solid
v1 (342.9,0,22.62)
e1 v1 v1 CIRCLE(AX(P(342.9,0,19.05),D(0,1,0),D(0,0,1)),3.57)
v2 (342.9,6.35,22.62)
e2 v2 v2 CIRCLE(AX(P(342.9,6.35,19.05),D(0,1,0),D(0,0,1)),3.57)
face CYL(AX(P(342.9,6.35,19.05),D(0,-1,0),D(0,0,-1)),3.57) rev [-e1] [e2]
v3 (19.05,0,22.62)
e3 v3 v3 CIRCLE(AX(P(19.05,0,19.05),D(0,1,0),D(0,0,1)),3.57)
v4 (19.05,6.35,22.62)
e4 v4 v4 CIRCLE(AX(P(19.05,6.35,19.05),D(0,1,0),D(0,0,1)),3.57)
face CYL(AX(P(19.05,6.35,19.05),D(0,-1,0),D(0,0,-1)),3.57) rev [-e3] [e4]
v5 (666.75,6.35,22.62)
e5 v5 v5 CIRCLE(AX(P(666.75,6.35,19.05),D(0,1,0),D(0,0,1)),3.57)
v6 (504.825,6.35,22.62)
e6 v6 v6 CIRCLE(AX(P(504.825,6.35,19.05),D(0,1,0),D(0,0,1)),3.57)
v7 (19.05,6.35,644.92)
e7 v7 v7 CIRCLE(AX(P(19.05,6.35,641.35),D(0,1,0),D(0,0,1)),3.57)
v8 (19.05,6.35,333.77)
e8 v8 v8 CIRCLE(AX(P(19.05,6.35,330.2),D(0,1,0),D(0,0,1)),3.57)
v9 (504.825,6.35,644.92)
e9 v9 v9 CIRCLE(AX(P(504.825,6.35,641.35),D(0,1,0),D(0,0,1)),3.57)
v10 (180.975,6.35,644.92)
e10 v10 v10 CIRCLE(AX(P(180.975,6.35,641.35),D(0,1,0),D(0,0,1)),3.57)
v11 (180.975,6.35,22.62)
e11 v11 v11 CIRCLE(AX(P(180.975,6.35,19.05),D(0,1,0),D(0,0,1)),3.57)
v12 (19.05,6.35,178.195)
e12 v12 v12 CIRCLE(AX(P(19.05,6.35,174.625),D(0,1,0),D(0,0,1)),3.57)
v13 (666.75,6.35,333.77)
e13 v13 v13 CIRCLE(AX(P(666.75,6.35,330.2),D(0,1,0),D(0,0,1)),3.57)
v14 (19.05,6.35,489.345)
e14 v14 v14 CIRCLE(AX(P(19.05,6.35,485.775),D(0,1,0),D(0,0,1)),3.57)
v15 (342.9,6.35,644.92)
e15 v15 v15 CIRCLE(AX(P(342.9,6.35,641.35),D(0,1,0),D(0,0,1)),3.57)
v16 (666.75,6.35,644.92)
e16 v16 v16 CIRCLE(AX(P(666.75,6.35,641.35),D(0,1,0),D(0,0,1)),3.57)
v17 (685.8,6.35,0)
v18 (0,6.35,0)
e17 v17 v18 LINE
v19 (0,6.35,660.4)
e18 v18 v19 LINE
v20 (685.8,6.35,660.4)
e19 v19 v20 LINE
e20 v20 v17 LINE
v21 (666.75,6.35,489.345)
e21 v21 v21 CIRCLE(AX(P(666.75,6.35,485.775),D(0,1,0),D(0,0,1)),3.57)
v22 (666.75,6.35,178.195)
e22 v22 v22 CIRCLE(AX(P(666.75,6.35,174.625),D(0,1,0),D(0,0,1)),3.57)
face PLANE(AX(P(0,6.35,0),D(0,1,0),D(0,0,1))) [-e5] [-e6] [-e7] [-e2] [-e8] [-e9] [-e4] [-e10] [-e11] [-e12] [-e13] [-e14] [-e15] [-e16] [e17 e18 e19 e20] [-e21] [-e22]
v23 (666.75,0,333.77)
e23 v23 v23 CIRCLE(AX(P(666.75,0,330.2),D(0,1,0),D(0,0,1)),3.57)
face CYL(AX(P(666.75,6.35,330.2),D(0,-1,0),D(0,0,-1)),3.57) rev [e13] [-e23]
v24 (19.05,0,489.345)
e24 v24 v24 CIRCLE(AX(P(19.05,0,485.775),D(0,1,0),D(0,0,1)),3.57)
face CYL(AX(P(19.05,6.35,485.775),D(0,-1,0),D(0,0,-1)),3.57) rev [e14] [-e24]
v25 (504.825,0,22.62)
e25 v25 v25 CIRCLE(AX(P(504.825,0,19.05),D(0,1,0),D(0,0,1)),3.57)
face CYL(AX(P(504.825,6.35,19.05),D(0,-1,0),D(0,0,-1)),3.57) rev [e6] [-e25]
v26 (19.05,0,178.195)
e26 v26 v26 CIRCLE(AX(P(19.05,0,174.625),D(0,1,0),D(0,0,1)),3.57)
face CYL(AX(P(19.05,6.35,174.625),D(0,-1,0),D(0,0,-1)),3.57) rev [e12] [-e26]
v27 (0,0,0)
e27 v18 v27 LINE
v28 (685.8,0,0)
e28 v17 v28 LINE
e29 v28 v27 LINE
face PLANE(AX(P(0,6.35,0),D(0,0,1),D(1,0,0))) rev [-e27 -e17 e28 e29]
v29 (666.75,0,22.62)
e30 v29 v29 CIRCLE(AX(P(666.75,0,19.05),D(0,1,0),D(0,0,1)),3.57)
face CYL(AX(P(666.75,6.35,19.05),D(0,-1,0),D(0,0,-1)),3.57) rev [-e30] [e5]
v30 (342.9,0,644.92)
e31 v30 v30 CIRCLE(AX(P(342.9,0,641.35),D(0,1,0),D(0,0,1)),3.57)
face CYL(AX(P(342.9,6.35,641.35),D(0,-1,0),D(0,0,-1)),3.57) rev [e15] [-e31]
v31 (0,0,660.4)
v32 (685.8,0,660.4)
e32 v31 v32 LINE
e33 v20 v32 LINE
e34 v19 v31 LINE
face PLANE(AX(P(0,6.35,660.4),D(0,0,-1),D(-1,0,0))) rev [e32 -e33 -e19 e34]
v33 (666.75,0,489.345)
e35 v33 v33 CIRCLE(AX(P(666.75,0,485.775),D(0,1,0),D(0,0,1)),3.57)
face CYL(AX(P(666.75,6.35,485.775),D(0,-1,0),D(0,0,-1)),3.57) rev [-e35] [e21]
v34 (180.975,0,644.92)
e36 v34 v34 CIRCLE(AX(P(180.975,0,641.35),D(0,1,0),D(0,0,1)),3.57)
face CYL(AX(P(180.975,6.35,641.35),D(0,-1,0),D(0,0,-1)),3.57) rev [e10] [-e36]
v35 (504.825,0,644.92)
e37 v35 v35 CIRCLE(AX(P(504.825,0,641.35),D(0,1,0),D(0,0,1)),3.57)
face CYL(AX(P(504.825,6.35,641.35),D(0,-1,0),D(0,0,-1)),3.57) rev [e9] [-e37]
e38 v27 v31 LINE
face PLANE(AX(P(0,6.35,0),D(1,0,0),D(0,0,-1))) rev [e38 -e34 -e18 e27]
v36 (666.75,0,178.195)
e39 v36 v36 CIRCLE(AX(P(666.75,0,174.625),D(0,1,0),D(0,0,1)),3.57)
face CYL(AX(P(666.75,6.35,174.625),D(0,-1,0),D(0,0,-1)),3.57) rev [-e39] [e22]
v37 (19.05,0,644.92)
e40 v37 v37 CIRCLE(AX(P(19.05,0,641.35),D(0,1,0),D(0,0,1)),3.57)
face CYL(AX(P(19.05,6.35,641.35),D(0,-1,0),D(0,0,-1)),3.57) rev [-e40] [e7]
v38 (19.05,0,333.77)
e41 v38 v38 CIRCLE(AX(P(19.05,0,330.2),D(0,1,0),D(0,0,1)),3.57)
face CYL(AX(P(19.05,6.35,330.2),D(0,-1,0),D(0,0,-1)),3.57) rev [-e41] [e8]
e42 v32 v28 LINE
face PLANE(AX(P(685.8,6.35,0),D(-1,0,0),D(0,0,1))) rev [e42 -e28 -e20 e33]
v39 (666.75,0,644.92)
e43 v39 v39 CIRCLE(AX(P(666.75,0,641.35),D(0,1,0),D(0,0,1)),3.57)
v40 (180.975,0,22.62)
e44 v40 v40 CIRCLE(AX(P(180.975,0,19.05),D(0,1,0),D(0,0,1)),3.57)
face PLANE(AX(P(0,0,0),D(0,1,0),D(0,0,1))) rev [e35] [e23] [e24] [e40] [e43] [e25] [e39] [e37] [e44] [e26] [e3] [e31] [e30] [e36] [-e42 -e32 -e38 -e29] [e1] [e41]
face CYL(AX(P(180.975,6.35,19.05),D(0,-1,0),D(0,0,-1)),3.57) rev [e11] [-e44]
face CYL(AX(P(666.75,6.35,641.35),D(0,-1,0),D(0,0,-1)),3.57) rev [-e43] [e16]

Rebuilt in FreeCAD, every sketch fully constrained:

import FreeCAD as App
import Part
import Sketcher
Q = App.Units.Quantity

doc = App.newDocument("Part")
params = doc.addObject("Spreadsheet::Sheet", "Params")
for row, (alias, value) in enumerate([
    ("sketch1_width", "27 in"),
    ("sketch1_height", "26 in"),
    ("pad1_length", "0.25 in"),
], start=1):
    params.set(f"A{row}", alias)
    params.set(f"B{row}", "=" + value)
    params.setAlias(f"B{row}", alias)

body = doc.addObject("PartDesign::Body", "Body")

# Sketch on XZ plane
sketch1 = body.newObject("Sketcher::SketchObject", "Sketch")
sketch1.AttachmentSupport = (doc.getObject("XZ_Plane"), [""])
sketch1.MapMode = "FlatFace"
sketch1.addGeometry([
    Part.LineSegment(App.Vector(0, 0, 0), App.Vector(0, 660.4, 0)),  # 0
    Part.LineSegment(App.Vector(0, 660.4, 0), App.Vector(685.8, 660.4, 0)),  # 1
    Part.LineSegment(App.Vector(685.8, 660.4, 0), App.Vector(685.8, 0, 0)),  # 2
    Part.LineSegment(App.Vector(685.8, 0, 0), App.Vector(0, 0, 0)),  # 3
    Part.Circle(App.Vector(19.1, 641.4, 0), App.Vector(0, 0, 1), 3.6),  # 4
    Part.Circle(App.Vector(181, 641.4, 0), App.Vector(0, 0, 1), 3.6),  # 5
    Part.Circle(App.Vector(19.1, 485.8, 0), App.Vector(0, 0, 1), 3.6),  # 6
    Part.Circle(App.Vector(342.9, 641.4, 0), App.Vector(0, 0, 1), 3.6),  # 7
    Part.Circle(App.Vector(504.8, 641.4, 0), App.Vector(0, 0, 1), 3.6),  # 8
    Part.Circle(App.Vector(666.8, 641.4, 0), App.Vector(0, 0, 1), 3.6),  # 9
    Part.Circle(App.Vector(666.8, 485.8, 0), App.Vector(0, 0, 1), 3.6),  # 10
    Part.Circle(App.Vector(19.1, 330.2, 0), App.Vector(0, 0, 1), 3.6),  # 11
    Part.Circle(App.Vector(19.1, 174.6, 0), App.Vector(0, 0, 1), 3.6),  # 12
    Part.Circle(App.Vector(19.1, 19.1, 0), App.Vector(0, 0, 1), 3.6),  # 13
    Part.Circle(App.Vector(181, 19.1, 0), App.Vector(0, 0, 1), 3.6),  # 14
    Part.Circle(App.Vector(666.8, 330.2, 0), App.Vector(0, 0, 1), 3.6),  # 15
    Part.Circle(App.Vector(666.8, 174.6, 0), App.Vector(0, 0, 1), 3.6),  # 16
    Part.Circle(App.Vector(342.9, 19.1, 0), App.Vector(0, 0, 1), 3.6),  # 17
    Part.Circle(App.Vector(504.8, 19.1, 0), App.Vector(0, 0, 1), 3.6),  # 18
    Part.Circle(App.Vector(666.8, 19.1, 0), App.Vector(0, 0, 1), 3.6),  # 19
], False)
sketch1.addConstraint([
    Sketcher.Constraint("Coincident", 0, 2, 1, 1),
    Sketcher.Constraint("Coincident", 1, 2, 2, 1),
    Sketcher.Constraint("Coincident", 2, 2, 3, 1),
    Sketcher.Constraint("Coincident", 3, 2, 0, 1),
    Sketcher.Constraint("Vertical", 0),
    Sketcher.Constraint("Horizontal", 1),
    Sketcher.Constraint("Vertical", 2),
    Sketcher.Constraint("Horizontal", 3),
    Sketcher.Constraint("Coincident", 3, 2, -1, 1),
    Sketcher.Constraint("Equal", 4, 5),
    Sketcher.Constraint("Equal", 5, 6),
    Sketcher.Constraint("Equal", 6, 7),
    Sketcher.Constraint("Equal", 7, 8),
    Sketcher.Constraint("Equal", 8, 9),
    Sketcher.Constraint("Equal", 9, 10),
    Sketcher.Constraint("Equal", 10, 11),
    Sketcher.Constraint("Equal", 11, 12),
    Sketcher.Constraint("Equal", 12, 13),
    Sketcher.Constraint("Equal", 13, 14),
    Sketcher.Constraint("Equal", 14, 15),
    Sketcher.Constraint("Equal", 15, 16),
    Sketcher.Constraint("Equal", 16, 17),
    Sketcher.Constraint("Equal", 17, 18),
    Sketcher.Constraint("Equal", 18, 19),
    Sketcher.Constraint("Horizontal", 4, 3, 5, 3),
    Sketcher.Constraint("Horizontal", 5, 3, 7, 3),
    Sketcher.Constraint("Horizontal", 7, 3, 8, 3),
    Sketcher.Constraint("Horizontal", 8, 3, 9, 3),
    Sketcher.Constraint("Horizontal", 6, 3, 10, 3),
    Sketcher.Constraint("Horizontal", 13, 3, 14, 3),
    Sketcher.Constraint("Horizontal", 11, 3, 15, 3),
    Sketcher.Constraint("Horizontal", 12, 3, 16, 3),
    Sketcher.Constraint("Horizontal", 14, 3, 17, 3),
    Sketcher.Constraint("Horizontal", 17, 3, 18, 3),
    Sketcher.Constraint("Horizontal", 18, 3, 19, 3),
    Sketcher.Constraint("Vertical", 4, 3, 6, 3),
    Sketcher.Constraint("Vertical", 9, 3, 10, 3),
    Sketcher.Constraint("Vertical", 6, 3, 11, 3),
    Sketcher.Constraint("Vertical", 11, 3, 12, 3),
    Sketcher.Constraint("Vertical", 12, 3, 13, 3),
    Sketcher.Constraint("Vertical", 5, 3, 14, 3),
    Sketcher.Constraint("Vertical", 10, 3, 15, 3),
    Sketcher.Constraint("Vertical", 15, 3, 16, 3),
    Sketcher.Constraint("Vertical", 7, 3, 17, 3),
    Sketcher.Constraint("Vertical", 8, 3, 18, 3),
    Sketcher.Constraint("Vertical", 16, 3, 19, 3),
    Sketcher.Constraint("DistanceX", 1, 1, 1, 2, Q("27 in")),
    Sketcher.Constraint("DistanceY", 0, 1, 0, 2, Q("26 in")),
    Sketcher.Constraint("DistanceY", -1, 1, 11, 3, Q("13 in")),
    Sketcher.Constraint("DistanceX", -1, 1, 7, 3, Q("13.5 in")),
    Sketcher.Constraint("DistanceX", 4, 3, 9, 3, Q("25.5 in")),
    Sketcher.Constraint("DistanceY", 13, 3, 4, 3, Q("24.5 in")),
    Sketcher.Constraint("Diameter", 4, 7.14),
    Sketcher.Constraint("DistanceX", -1, 1, 4, 3, Q("0.75 in")),
    Sketcher.Constraint("DistanceY", -1, 1, 4, 3, Q("25.25 in")),
    Sketcher.Constraint("DistanceX", 5, 3, 8, 3, Q("12.75 in")),
    Sketcher.Constraint("DistanceY", 12, 3, 6, 3, Q("12.25 in")),
    Sketcher.Constraint("DistanceX", -1, 1, 5, 3, Q("7.125 in")),
    Sketcher.Constraint("DistanceY", -1, 1, 6, 3, Q("19.125 in")),
])
sketch1.setExpression("Constraints[46]", "Params.sketch1_width")
sketch1.setExpression("Constraints[47]", "Params.sketch1_height")
pad1 = body.newObject("PartDesign::Pad", "Pad")
pad1.Profile = sketch1
pad1.setExpression("Length", "Params.pad1_length")
pad1.Reversed = True

doc.recompute()
